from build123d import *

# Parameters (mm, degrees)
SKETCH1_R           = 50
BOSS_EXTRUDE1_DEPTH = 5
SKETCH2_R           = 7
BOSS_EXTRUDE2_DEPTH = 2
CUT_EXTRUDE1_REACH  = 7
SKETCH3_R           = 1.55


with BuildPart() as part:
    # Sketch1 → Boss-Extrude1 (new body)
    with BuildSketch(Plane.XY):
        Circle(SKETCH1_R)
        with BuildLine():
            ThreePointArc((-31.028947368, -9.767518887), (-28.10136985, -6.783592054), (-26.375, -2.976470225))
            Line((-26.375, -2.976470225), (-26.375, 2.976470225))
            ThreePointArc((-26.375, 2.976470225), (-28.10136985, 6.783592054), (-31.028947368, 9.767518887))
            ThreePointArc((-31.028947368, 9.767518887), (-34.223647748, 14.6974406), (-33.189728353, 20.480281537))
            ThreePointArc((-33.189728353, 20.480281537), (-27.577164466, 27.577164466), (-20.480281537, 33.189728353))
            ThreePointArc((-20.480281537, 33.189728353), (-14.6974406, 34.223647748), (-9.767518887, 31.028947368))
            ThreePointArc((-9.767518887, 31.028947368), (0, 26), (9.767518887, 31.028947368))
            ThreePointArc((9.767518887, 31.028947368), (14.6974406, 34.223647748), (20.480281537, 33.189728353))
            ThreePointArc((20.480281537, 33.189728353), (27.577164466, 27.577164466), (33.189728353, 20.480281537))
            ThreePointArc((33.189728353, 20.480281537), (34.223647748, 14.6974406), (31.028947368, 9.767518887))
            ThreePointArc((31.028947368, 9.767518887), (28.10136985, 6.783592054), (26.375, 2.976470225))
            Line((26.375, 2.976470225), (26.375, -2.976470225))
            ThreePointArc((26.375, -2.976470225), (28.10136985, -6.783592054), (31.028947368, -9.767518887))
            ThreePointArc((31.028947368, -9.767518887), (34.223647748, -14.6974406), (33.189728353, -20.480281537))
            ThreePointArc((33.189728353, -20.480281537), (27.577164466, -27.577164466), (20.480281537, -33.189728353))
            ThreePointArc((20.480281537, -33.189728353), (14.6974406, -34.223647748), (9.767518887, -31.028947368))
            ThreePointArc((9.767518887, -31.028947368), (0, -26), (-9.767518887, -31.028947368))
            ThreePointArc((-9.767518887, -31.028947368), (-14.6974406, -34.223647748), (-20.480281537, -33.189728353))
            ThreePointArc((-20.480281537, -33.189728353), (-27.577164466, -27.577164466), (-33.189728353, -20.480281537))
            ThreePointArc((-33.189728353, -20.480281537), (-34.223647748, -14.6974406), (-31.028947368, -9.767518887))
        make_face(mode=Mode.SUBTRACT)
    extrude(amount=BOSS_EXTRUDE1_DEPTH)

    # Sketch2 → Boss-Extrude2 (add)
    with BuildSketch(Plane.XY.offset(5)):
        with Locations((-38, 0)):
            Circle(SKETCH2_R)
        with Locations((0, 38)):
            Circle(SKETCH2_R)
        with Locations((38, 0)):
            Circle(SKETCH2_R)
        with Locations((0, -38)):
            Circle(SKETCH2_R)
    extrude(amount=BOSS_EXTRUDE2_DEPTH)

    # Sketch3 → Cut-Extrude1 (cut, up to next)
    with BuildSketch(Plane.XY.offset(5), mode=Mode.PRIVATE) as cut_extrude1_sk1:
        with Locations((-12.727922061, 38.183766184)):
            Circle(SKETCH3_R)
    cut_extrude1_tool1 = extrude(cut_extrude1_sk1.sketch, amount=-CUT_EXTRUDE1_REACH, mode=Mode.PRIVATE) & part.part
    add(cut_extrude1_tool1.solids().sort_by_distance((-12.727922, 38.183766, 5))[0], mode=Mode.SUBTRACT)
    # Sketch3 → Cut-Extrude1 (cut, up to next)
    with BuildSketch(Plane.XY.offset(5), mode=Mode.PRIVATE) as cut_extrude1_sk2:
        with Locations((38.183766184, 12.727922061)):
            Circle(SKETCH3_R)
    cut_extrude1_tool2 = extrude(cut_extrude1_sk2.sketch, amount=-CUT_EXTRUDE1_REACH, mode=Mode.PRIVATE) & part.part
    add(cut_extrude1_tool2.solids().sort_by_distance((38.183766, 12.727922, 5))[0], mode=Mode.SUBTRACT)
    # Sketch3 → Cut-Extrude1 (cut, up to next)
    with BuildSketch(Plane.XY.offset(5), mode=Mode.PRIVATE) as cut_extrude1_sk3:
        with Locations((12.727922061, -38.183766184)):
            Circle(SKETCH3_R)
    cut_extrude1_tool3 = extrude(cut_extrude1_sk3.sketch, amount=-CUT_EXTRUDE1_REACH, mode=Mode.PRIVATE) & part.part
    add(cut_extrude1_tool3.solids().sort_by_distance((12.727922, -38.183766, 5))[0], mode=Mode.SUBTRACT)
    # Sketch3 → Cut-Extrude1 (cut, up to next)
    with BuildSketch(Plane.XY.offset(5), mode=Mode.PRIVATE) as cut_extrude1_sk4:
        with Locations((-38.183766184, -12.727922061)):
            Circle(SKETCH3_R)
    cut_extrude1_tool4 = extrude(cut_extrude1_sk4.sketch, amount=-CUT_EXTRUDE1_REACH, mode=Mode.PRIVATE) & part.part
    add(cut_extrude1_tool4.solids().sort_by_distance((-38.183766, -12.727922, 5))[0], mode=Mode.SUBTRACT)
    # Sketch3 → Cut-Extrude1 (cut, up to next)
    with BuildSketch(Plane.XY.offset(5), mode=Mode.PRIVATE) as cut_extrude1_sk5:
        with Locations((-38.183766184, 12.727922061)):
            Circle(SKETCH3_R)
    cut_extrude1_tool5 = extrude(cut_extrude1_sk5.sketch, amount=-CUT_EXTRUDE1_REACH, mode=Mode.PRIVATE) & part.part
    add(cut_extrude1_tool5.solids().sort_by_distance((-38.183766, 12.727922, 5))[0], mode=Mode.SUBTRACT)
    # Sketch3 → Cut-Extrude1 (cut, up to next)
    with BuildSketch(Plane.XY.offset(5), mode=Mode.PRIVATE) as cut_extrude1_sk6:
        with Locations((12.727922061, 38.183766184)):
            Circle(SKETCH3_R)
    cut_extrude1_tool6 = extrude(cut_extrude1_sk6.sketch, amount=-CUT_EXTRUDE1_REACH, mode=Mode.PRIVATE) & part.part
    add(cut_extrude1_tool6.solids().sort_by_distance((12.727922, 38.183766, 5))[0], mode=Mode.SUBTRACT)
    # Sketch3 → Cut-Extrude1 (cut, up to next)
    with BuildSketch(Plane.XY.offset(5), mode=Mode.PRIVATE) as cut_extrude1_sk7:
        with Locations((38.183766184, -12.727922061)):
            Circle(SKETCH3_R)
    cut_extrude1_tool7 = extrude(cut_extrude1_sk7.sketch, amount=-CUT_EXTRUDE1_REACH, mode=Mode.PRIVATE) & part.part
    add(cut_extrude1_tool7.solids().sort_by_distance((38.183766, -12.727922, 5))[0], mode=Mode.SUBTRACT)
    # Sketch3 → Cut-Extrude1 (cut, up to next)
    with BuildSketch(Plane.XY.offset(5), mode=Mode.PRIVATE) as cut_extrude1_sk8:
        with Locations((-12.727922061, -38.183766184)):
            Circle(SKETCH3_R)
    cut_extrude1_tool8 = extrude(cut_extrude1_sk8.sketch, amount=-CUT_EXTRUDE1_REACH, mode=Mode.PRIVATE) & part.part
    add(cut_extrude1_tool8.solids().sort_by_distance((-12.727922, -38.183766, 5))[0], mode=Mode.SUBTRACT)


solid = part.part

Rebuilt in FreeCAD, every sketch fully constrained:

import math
import FreeCAD as App
import Part
import Sketcher

V = App.Vector
Q = App.Units.Quantity

doc = App.newDocument("Part")
params = doc.addObject("Spreadsheet::Sheet", "Params")
for row, (alias, value) in enumerate([
    ("sketch1_diameter", "100 mm"),
    ("sketch1_radius", "8 mm"),
    ("sketch1_radius2", "12 mm"),
    ("sketch1_radius3", "39 mm"),
    ("pad1_length", "5 mm"),
    ("sketch2_diameter", "14 mm"),
    ("pad2_length", "2 mm"),
    ("sketch3_diameter", "3.1 mm"),
    ("sketch4_diameter", "3.1 mm"),
    ("sketch5_diameter", "3.1 mm"),
    ("sketch6_diameter", "3.1 mm"),
    ("sketch7_diameter", "3.1 mm"),
    ("sketch8_diameter", "3.1 mm"),
    ("sketch9_diameter", "3.1 mm"),
    ("sketch10_diameter", "3.1 mm"),
], start=1):
    params.set(f"A{row}", alias)
    params.set(f"B{row}", "=" + value)
    params.setAlias(f"B{row}", alias)

body = doc.addObject("PartDesign::Body", "Body")

# Sketch on XY plane
sketch1 = doc.addObject("Sketcher::SketchObject", "Sketch")
body.addObject(sketch1)
sketch1.AttachmentSupport = (doc.XY_Plane, [""])
sketch1.MapMode = "FlatFace"
sketch1.addGeometry([
    Part.Circle(V(0, 0, 0), V(0, 0, 1), 50),  # 0
    Part.ArcOfCircle(Part.Circle(V(-26.381579, -16.279198, 0), V(0, 0, 1), 8), math.radians(125.515351), math.radians(211.67736)),  # 1
    Part.ArcOfCircle(Part.Circle(V(-38, 0, 0), V(0, 0, 1), 12), math.radians(-54.484649), math.radians(-14.361512)),  # 2
    Part.LineSegment(V(-26.375, -2.97647, 0), V(-26.375, 2.97647, 0)),  # 3
    Part.ArcOfCircle(Part.Circle(V(-38, 0, 0), V(0, 0, 1), 12), math.radians(14.361512), math.radians(54.484649)),  # 4
    Part.ArcOfCircle(Part.Circle(V(-26.381579, 16.279198, 0), V(0, 0, 1), 8), math.radians(148.32264), math.radians(234.484649)),  # 5
    Part.ArcOfCircle(Part.Circle(V(0, 0, 0), V(0, 0, 1), 39), math.radians(121.67736), math.radians(148.32264)),  # 6
    Part.ArcOfCircle(Part.Circle(V(-16.279198, 26.381579, 0), V(0, 0, 1), 8), math.radians(35.515351), math.radians(121.67736)),  # 7
    Part.ArcOfCircle(Part.Circle(V(0, 38, 0), V(0, 0, 1), 12), math.radians(-144.484649), math.radians(-35.515351)),  # 8
    Part.ArcOfCircle(Part.Circle(V(16.279198, 26.381579, 0), V(0, 0, 1), 8), math.radians(58.32264), math.radians(144.484649)),  # 9
    Part.ArcOfCircle(Part.Circle(V(0, 0, 0), V(0, 0, 1), 39), math.radians(31.67736), math.radians(58.32264)),  # 10
    Part.ArcOfCircle(Part.Circle(V(26.381579, 16.279198, 0), V(0, 0, 1), 8), math.radians(-54.484649), math.radians(31.67736)),  # 11
    Part.ArcOfCircle(Part.Circle(V(38, 0, 0), V(0, 0, 1), 12), math.radians(125.515351), math.radians(165.638488)),  # 12
    Part.LineSegment(V(26.375, 2.97647, 0), V(26.375, -2.97647, 0)),  # 13
    Part.ArcOfCircle(Part.Circle(V(38, 0, 0), V(0, 0, 1), 12), math.radians(-165.638488), math.radians(-125.515351)),  # 14
    Part.ArcOfCircle(Part.Circle(V(26.381579, -16.279198, 0), V(0, 0, 1), 8), math.radians(-31.67736), math.radians(54.484649)),  # 15
    Part.ArcOfCircle(Part.Circle(V(0, 0, 0), V(0, 0, 1), 39), math.radians(-58.32264), math.radians(-31.67736)),  # 16
    Part.ArcOfCircle(Part.Circle(V(16.279198, -26.381579, 0), V(0, 0, 1), 8), math.radians(-144.484649), math.radians(-58.32264)),  # 17
    Part.ArcOfCircle(Part.Circle(V(0, -38, 0), V(0, 0, 1), 12), math.radians(35.515351), math.radians(144.484649)),  # 18
    Part.ArcOfCircle(Part.Circle(V(-16.279198, -26.381579, 0), V(0, 0, 1), 8), math.radians(-121.67736), math.radians(-35.515351)),  # 19
    Part.ArcOfCircle(Part.Circle(V(0, 0, 0), V(0, 0, 1), 39), math.radians(-148.32264), math.radians(-121.67736)),  # 20
], False)
sketch1.addConstraint([
    Sketcher.Constraint("Tangent", 1, 1, 2, 1),
    Sketcher.Constraint("Coincident", 2, 2, 3, 1),
    Sketcher.Constraint("Coincident", 3, 2, 4, 1),
    Sketcher.Constraint("Tangent", 4, 2, 5, 2),
    Sketcher.Constraint("Tangent", 5, 1, 6, 2),
    Sketcher.Constraint("Tangent", 6, 1, 7, 2),
    Sketcher.Constraint("Tangent", 7, 1, 8, 1),
    Sketcher.Constraint("Tangent", 8, 2, 9, 2),
    Sketcher.Constraint("Tangent", 9, 1, 10, 2),
    Sketcher.Constraint("Tangent", 10, 1, 11, 2),
    Sketcher.Constraint("Tangent", 11, 1, 12, 1),
    Sketcher.Constraint("Coincident", 12, 2, 13, 1),
    Sketcher.Constraint("Coincident", 13, 2, 14, 1),
    Sketcher.Constraint("Tangent", 14, 2, 15, 2),
    Sketcher.Constraint("Tangent", 15, 1, 16, 2),
    Sketcher.Constraint("Tangent", 16, 1, 17, 2),
    Sketcher.Constraint("Tangent", 17, 1, 18, 1),
    Sketcher.Constraint("Tangent", 18, 2, 19, 2),
    Sketcher.Constraint("Tangent", 19, 1, 20, 2),
    Sketcher.Constraint("Tangent", 20, 1, 1, 2),
    Sketcher.Constraint("Vertical", 3),
    Sketcher.Constraint("Vertical", 13),
    Sketcher.Constraint("Coincident", 0, 3, -1, 1),
    Sketcher.Constraint("Coincident", 6, 3, -1, 1),
    Sketcher.Constraint("Coincident", 10, 3, -1, 1),
    Sketcher.Constraint("Coincident", 16, 3, -1, 1),
    Sketcher.Constraint("Coincident", 20, 3, -1, 1),
    Sketcher.Constraint("Coincident", 4, 3, 2, 3),
    Sketcher.Constraint("Coincident", 14, 3, 12, 3),
    Sketcher.Constraint("Equal", 2, 4),
    Sketcher.Constraint("Equal", 1, 5),
    Sketcher.Constraint("Equal", 5, 7),
    Sketcher.Constraint("Equal", 4, 8),
    Sketcher.Constraint("Equal", 7, 9),
    Sketcher.Constraint("Equal", 6, 10),
    Sketcher.Constraint("Equal", 9, 11),
    Sketcher.Constraint("Equal", 8, 12),
    Sketcher.Constraint("Equal", 12, 14),
    Sketcher.Constraint("Equal", 11, 15),
    Sketcher.Constraint("Equal", 10, 16),
    Sketcher.Constraint("Equal", 15, 17),
    Sketcher.Constraint("Equal", 14, 18),
    Sketcher.Constraint("Equal", 17, 19),
    Sketcher.Constraint("Equal", 16, 20),
    Sketcher.Constraint("Symmetric", 2, 3, 12, 3, -1, 1),
    Sketcher.Constraint("Symmetric", 8, 3, 18, 3, -1, 1),
    Sketcher.Constraint("Symmetric", 3, 2, 12, 2, -2),
    Sketcher.Constraint("PointOnObject", 8, 3, -2),
    Sketcher.Constraint("Diameter", 0, Q("100 mm")),
    Sketcher.Constraint("Radius", 1, Q("8 mm")),
    Sketcher.Constraint("Radius", 2, Q("12 mm")),
    Sketcher.Constraint("Radius", 6, Q("39 mm")),
    Sketcher.Constraint("DistanceX", 2, 3, -1, 1, Q("38 mm")),
    Sketcher.Constraint("DistanceY", -1, 1, 8, 3, Q("38 mm")),
    Sketcher.Constraint("DistanceX", 2, 2, -1, 1, Q("26.375 mm")),
])
sketch1.setExpression("Constraints[48]", "Params.sketch1_diameter")
sketch1.setExpression("Constraints[49]", "Params.sketch1_radius")
sketch1.setExpression("Constraints[50]", "Params.sketch1_radius2")
sketch1.setExpression("Constraints[51]", "Params.sketch1_radius3")
pad1 = doc.addObject("PartDesign::Pad", "Pad")
body.addObject(pad1)
pad1.Profile = sketch1
pad1.setExpression("Length", "Params.pad1_length")

# Sketch on XY plane
sketch2 = doc.addObject("Sketcher::SketchObject", "Sketch001")
body.addObject(sketch2)
sketch2.AttachmentSupport = (doc.XY_Plane, [""])
sketch2.MapMode = "FlatFace"
sketch2.AttachmentOffset = App.Placement(V(0, 0, 5), App.Rotation())
sketch2.addGeometry([
    Part.Circle(V(-38, 0, 0), V(0, 0, 1), 7),
    Part.Circle(V(0, 38, 0), V(0, 0, 1), 7),
    Part.Circle(V(38, 0, 0), V(0, 0, 1), 7),
    Part.Circle(V(0, -38, 0), V(0, 0, 1), 7),
], False)
sketch2.addConstraint([
    Sketcher.Constraint("Equal", 0, 1),
    Sketcher.Constraint("Equal", 1, 2),
    Sketcher.Constraint("Equal", 2, 3),
    Sketcher.Constraint("Symmetric", 0, 3, 2, 3, -1, 1),
    Sketcher.Constraint("Symmetric", 1, 3, 3, 3, -1, 1),
    Sketcher.Constraint("PointOnObject", 0, 3, -1),
    Sketcher.Constraint("PointOnObject", 1, 3, -2),
    Sketcher.Constraint("Diameter", 0, Q("14 mm")),
    Sketcher.Constraint("DistanceX", 0, 3, -1, 1, Q("38 mm")),
    Sketcher.Constraint("DistanceY", -1, 1, 1, 3, Q("38 mm")),
])
sketch2.setExpression("Constraints[7]", "Params.sketch2_diameter")
pad2 = doc.addObject("PartDesign::Pad", "Pad001")
body.addObject(pad2)
pad2.Profile = sketch2
pad2.setExpression("Length", "Params.pad2_length")

# Sketch on XY plane
sketch3 = doc.addObject("Sketcher::SketchObject", "Sketch002")
body.addObject(sketch3)
sketch3.AttachmentSupport = (doc.XY_Plane, [""])
sketch3.MapMode = "FlatFace"
sketch3.AttachmentOffset = App.Placement(V(0, 0, 5), App.Rotation())
sketch3.addGeometry(Part.Circle(V(-12.727922, 38.183766, 0), V(0, 0, 1), 1.55), False)
sketch3.addConstraint([
    Sketcher.Constraint("Diameter", 0, Q("3.1 mm")),
    Sketcher.Constraint("DistanceX", 0, 3, -1, 1, Q("12.727922 mm")),
    Sketcher.Constraint("DistanceY", -1, 1, 0, 3, Q("38.183766 mm")),
])
sketch3.setExpression("Constraints[0]", "Params.sketch3_diameter")
pocket1 = doc.addObject("PartDesign::Pocket", "Pocket")
body.addObject(pocket1)
pocket1.Profile = sketch3
pocket1.Type = "UpToFirst"

# Sketch on XY plane
sketch4 = doc.addObject("Sketcher::SketchObject", "Sketch003")
body.addObject(sketch4)
sketch4.AttachmentSupport = (doc.XY_Plane, [""])
sketch4.MapMode = "FlatFace"
sketch4.AttachmentOffset = App.Placement(V(0, 0, 5), App.Rotation())
sketch4.addGeometry(Part.Circle(V(38.183766, 12.727922, 0), V(0, 0, 1), 1.55), False)
sketch4.addConstraint([
    Sketcher.Constraint("Diameter", 0, Q("3.1 mm")),
    Sketcher.Constraint("DistanceX", -1, 1, 0, 3, Q("38.183766 mm")),
    Sketcher.Constraint("DistanceY", -1, 1, 0, 3, Q("12.727922 mm")),
])
sketch4.setExpression("Constraints[0]", "Params.sketch4_diameter")
pocket2 = doc.addObject("PartDesign::Pocket", "Pocket001")
body.addObject(pocket2)
pocket2.Profile = sketch4
pocket2.Type = "UpToFirst"

# Sketch on XY plane
sketch5 = doc.addObject("Sketcher::SketchObject", "Sketch004")
body.addObject(sketch5)
sketch5.AttachmentSupport = (doc.XY_Plane, [""])
sketch5.MapMode = "FlatFace"
sketch5.AttachmentOffset = App.Placement(V(0, 0, 5), App.Rotation())
sketch5.addGeometry(Part.Circle(V(12.727922, -38.183766, 0), V(0, 0, 1), 1.55), False)
sketch5.addConstraint([
    Sketcher.Constraint("Diameter", 0, Q("3.1 mm")),
    Sketcher.Constraint("DistanceX", -1, 1, 0, 3, Q("12.727922 mm")),
    Sketcher.Constraint("DistanceY", 0, 3, -1, 1, Q("38.183766 mm")),
])
sketch5.setExpression("Constraints[0]", "Params.sketch5_diameter")
pocket3 = doc.addObject("PartDesign::Pocket", "Pocket002")
body.addObject(pocket3)
pocket3.Profile = sketch5
pocket3.Type = "UpToFirst"

# Sketch on XY plane
sketch6 = doc.addObject("Sketcher::SketchObject", "Sketch005")
body.addObject(sketch6)
sketch6.AttachmentSupport = (doc.XY_Plane, [""])
sketch6.MapMode = "FlatFace"
sketch6.AttachmentOffset = App.Placement(V(0, 0, 5), App.Rotation())
sketch6.addGeometry(Part.Circle(V(-38.183766, -12.727922, 0), V(0, 0, 1), 1.55), False)
sketch6.addConstraint([
    Sketcher.Constraint("Diameter", 0, Q("3.1 mm")),
    Sketcher.Constraint("DistanceX", 0, 3, -1, 1, Q("38.183766 mm")),
    Sketcher.Constraint("DistanceY", 0, 3, -1, 1, Q("12.727922 mm")),
])
sketch6.setExpression("Constraints[0]", "Params.sketch6_diameter")
pocket4 = doc.addObject("PartDesign::Pocket", "Pocket003")
body.addObject(pocket4)
pocket4.Profile = sketch6
pocket4.Type = "UpToFirst"

# Sketch on XY plane
sketch7 = doc.addObject("Sketcher::SketchObject", "Sketch006")
body.addObject(sketch7)
sketch7.AttachmentSupport = (doc.XY_Plane, [""])
sketch7.MapMode = "FlatFace"
sketch7.AttachmentOffset = App.Placement(V(0, 0, 5), App.Rotation())
sketch7.addGeometry(Part.Circle(V(-38.183766, 12.727922, 0), V(0, 0, 1), 1.55), False)
sketch7.addConstraint([
    Sketcher.Constraint("Diameter", 0, Q("3.1 mm")),
    Sketcher.Constraint("DistanceX", 0, 3, -1, 1, Q("38.183766 mm")),
    Sketcher.Constraint("DistanceY", -1, 1, 0, 3, Q("12.727922 mm")),
])
sketch7.setExpression("Constraints[0]", "Params.sketch7_diameter")
pocket5 = doc.addObject("PartDesign::Pocket", "Pocket004")
body.addObject(pocket5)
pocket5.Profile = sketch7
pocket5.Type = "UpToFirst"

# Sketch on XY plane
sketch8 = doc.addObject("Sketcher::SketchObject", "Sketch007")
body.addObject(sketch8)
sketch8.AttachmentSupport = (doc.XY_Plane, [""])
sketch8.MapMode = "FlatFace"
sketch8.AttachmentOffset = App.Placement(V(0, 0, 5), App.Rotation())
sketch8.addGeometry(Part.Circle(V(12.727922, 38.183766, 0), V(0, 0, 1), 1.55), False)
sketch8.addConstraint([
    Sketcher.Constraint("Diameter", 0, Q("3.1 mm")),
    Sketcher.Constraint("DistanceX", -1, 1, 0, 3, Q("12.727922 mm")),
    Sketcher.Constraint("DistanceY", -1, 1, 0, 3, Q("38.183766 mm")),
])
sketch8.setExpression("Constraints[0]", "Params.sketch8_diameter")
pocket6 = doc.addObject("PartDesign::Pocket", "Pocket005")
body.addObject(pocket6)
pocket6.Profile = sketch8
pocket6.Type = "UpToFirst"

# Sketch on XY plane
sketch9 = doc.addObject("Sketcher::SketchObject", "Sketch008")
body.addObject(sketch9)
sketch9.AttachmentSupport = (doc.XY_Plane, [""])
sketch9.MapMode = "FlatFace"
sketch9.AttachmentOffset = App.Placement(V(0, 0, 5), App.Rotation())
sketch9.addGeometry(Part.Circle(V(38.183766, -12.727922, 0), V(0, 0, 1), 1.55), False)
sketch9.addConstraint([
    Sketcher.Constraint("Diameter", 0, Q("3.1 mm")),
    Sketcher.Constraint("DistanceX", -1, 1, 0, 3, Q("38.183766 mm")),
    Sketcher.Constraint("DistanceY", 0, 3, -1, 1, Q("12.727922 mm")),
])
sketch9.setExpression("Constraints[0]", "Params.sketch9_diameter")
pocket7 = doc.addObject("PartDesign::Pocket", "Pocket006")
body.addObject(pocket7)
pocket7.Profile = sketch9
pocket7.Type = "UpToFirst"

# Sketch on XY plane
sketch10 = doc.addObject("Sketcher::SketchObject", "Sketch009")
body.addObject(sketch10)
sketch10.AttachmentSupport = (doc.XY_Plane, [""])
sketch10.MapMode = "FlatFace"
sketch10.AttachmentOffset = App.Placement(V(0, 0, 5), App.Rotation())
sketch10.addGeometry(Part.Circle(V(-12.727922, -38.183766, 0), V(0, 0, 1), 1.55), False)
sketch10.addConstraint([
    Sketcher.Constraint("Diameter", 0, Q("3.1 mm")),
    Sketcher.Constraint("DistanceX", 0, 3, -1, 1, Q("12.727922 mm")),
    Sketcher.Constraint("DistanceY", 0, 3, -1, 1, Q("38.183766 mm")),
])
sketch10.setExpression("Constraints[0]", "Params.sketch10_diameter")
pocket8 = doc.addObject("PartDesign::Pocket", "Pocket007")
body.addObject(pocket8)
pocket8.Profile = sketch10
pocket8.Type = "UpToFirst"

doc.recompute()
